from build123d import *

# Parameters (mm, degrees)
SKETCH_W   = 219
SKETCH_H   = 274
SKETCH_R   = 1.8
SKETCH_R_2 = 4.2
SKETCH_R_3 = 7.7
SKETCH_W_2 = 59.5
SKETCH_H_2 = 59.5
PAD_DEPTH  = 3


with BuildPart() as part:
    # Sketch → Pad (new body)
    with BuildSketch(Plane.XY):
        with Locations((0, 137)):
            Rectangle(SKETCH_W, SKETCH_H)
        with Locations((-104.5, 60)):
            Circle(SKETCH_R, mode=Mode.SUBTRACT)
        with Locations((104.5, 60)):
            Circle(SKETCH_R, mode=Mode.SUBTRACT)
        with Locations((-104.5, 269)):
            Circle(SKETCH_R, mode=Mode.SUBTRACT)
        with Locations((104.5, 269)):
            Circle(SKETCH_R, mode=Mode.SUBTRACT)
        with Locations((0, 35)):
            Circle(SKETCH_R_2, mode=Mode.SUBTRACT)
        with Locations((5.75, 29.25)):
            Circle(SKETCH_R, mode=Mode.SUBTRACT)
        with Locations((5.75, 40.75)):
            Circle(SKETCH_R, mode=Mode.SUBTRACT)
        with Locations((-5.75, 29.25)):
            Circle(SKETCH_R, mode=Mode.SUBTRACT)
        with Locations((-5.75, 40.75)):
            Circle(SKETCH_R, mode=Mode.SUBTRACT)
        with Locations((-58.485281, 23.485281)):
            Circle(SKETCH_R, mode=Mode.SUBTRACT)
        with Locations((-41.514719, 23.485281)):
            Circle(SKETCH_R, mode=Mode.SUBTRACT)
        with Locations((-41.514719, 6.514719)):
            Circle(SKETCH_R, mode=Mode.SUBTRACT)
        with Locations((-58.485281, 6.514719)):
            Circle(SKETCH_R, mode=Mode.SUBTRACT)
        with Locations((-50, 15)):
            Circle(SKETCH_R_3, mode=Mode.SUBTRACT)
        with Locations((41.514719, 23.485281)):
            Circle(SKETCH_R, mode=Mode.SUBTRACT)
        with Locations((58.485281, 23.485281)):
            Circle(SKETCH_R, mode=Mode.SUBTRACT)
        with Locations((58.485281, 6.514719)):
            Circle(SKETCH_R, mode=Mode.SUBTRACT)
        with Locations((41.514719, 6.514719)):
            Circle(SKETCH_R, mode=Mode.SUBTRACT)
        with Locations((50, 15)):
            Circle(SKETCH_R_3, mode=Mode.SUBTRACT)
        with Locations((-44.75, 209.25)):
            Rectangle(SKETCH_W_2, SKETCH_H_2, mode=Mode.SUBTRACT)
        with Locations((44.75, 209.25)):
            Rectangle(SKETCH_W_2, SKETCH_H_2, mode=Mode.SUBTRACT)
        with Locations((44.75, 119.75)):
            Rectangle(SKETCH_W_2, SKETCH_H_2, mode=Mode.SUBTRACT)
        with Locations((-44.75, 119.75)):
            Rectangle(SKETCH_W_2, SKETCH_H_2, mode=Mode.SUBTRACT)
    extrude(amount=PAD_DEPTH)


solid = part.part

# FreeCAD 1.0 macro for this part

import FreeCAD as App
import Part
import Sketcher

V = App.Vector
Q = App.Units.Quantity

doc = App.newDocument("Part")
params = doc.addObject("Spreadsheet::Sheet", "Params")
for row, (alias, value) in enumerate([
    ("sketch1_diameter", "3.6 mm"),
    ("sketch1_diameter2", "15.4 mm"),
    ("sketch1_diameter3", "8.4 mm"),
    ("sketch1_width", "219 mm"),
    ("sketch1_height", "274 mm"),
    ("pad1_length", "3 mm"),
], start=1):
    params.set(f"A{row}", alias)
    params.set(f"B{row}", "=" + value)
    params.setAlias(f"B{row}", alias)

body = doc.addObject("PartDesign::Body", "Body")

sketch1 = body.newObject("Sketcher::SketchObject", "Sketch")
sketch1.AttachmentSupport = (doc.getObject("XY_Plane"), [""])
sketch1.MapMode = "FlatFace"
sketch1.addGeometry([
    Part.LineSegment(V(-109.5, 274, 0), V(-109.5, 0, 0)),
    Part.LineSegment(V(-109.5, 0, 0), V(109.5, 0, 0)),
    Part.LineSegment(V(109.5, 0, 0), V(109.5, 274, 0)),
    Part.LineSegment(V(109.5, 274, 0), V(-109.5, 274, 0)),
    Part.Circle(V(-58.485281, 6.514719, 0), V(0, 0, 1), 1.8),
    Part.Circle(V(-58.485281, 23.485281, 0), V(0, 0, 1), 1.8),
    Part.Circle(V(-104.5, 60, 0), V(0, 0, 1), 1.8),
    Part.Circle(V(-41.514719, 6.514719, 0), V(0, 0, 1), 1.8),
    Part.Circle(V(-50, 15, 0), V(0, 0, 1), 7.7),
    Part.Circle(V(-41.514719, 23.485281, 0), V(0, 0, 1), 1.8),
    Part.Circle(V(-5.75, 29.25, 0), V(0, 0, 1), 1.8),
    Part.Circle(V(-5.75, 40.75, 0), V(0, 0, 1), 1.8),
    Part.LineSegment(V(-15, 90, 0), V(-74.5, 90, 0)),
    Part.LineSegment(V(-74.5, 90, 0), V(-74.5, 149.5, 0)),
    Part.LineSegment(V(-74.5, 149.5, 0), V(-15, 149.5, 0)),
    Part.LineSegment(V(-15, 149.5, 0), V(-15, 90, 0)),
    Part.Circle(V(5.75, 29.25, 0), V(0, 0, 1), 1.8),
    Part.Circle(V(0, 35, 0), V(0, 0, 1), 4.2),
    Part.Circle(V(41.514719, 6.514719, 0), V(0, 0, 1), 1.8),
    Part.Circle(V(50, 15, 0), V(0, 0, 1), 7.7),
    Part.Circle(V(41.514719, 23.485281, 0), V(0, 0, 1), 1.8),
    Part.Circle(V(5.75, 40.75, 0), V(0, 0, 1), 1.8),
    Part.Circle(V(58.485281, 6.514719, 0), V(0, 0, 1), 1.8),
    Part.Circle(V(58.485281, 23.485281, 0), V(0, 0, 1), 1.8),
    Part.Circle(V(104.5, 60, 0), V(0, 0, 1), 1.8),
    Part.LineSegment(V(74.5, 90, 0), V(15, 90, 0)),
    Part.LineSegment(V(15, 90, 0), V(15, 149.5, 0)),
    Part.LineSegment(V(15, 149.5, 0), V(74.5, 149.5, 0)),
    Part.LineSegment(V(74.5, 149.5, 0), V(74.5, 90, 0)),
    Part.Circle(V(-104.5, 269, 0), V(0, 0, 1), 1.8),
    Part.LineSegment(V(-15, 179.5, 0), V(-74.5, 179.5, 0)),
    Part.LineSegment(V(-74.5, 179.5, 0), V(-74.5, 239, 0)),
    Part.LineSegment(V(-74.5, 239, 0), V(-15, 239, 0)),
    Part.LineSegment(V(-15, 239, 0), V(-15, 179.5, 0)),
    Part.LineSegment(V(74.5, 179.5, 0), V(15, 179.5, 0)),
    Part.LineSegment(V(15, 179.5, 0), V(15, 239, 0)),
    Part.LineSegment(V(15, 239, 0), V(74.5, 239, 0)),
    Part.LineSegment(V(74.5, 239, 0), V(74.5, 179.5, 0)),
    Part.Circle(V(104.5, 269, 0), V(0, 0, 1), 1.8),
], False)
sketch1.addConstraint([
    Sketcher.Constraint("Coincident", 0, 2, 1, 1),
    Sketcher.Constraint("Coincident", 1, 2, 2, 1),
    Sketcher.Constraint("Coincident", 2, 2, 3, 1),
    Sketcher.Constraint("Coincident", 3, 2, 0, 1),
    Sketcher.Constraint("Coincident", 12, 2, 13, 1),
    Sketcher.Constraint("Coincident", 13, 2, 14, 1),
    Sketcher.Constraint("Coincident", 14, 2, 15, 1),
    Sketcher.Constraint("Coincident", 15, 2, 12, 1),
    Sketcher.Constraint("Coincident", 25, 2, 26, 1),
    Sketcher.Constraint("Coincident", 26, 2, 27, 1),
    Sketcher.Constraint("Coincident", 27, 2, 28, 1),
    Sketcher.Constraint("Coincident", 28, 2, 25, 1),
    Sketcher.Constraint("Coincident", 30, 2, 31, 1),
    Sketcher.Constraint("Coincident", 31, 2, 32, 1),
    Sketcher.Constraint("Coincident", 32, 2, 33, 1),
    Sketcher.Constraint("Coincident", 33, 2, 30, 1),
    Sketcher.Constraint("Coincident", 34, 2, 35, 1),
    Sketcher.Constraint("Coincident", 35, 2, 36, 1),
    Sketcher.Constraint("Coincident", 36, 2, 37, 1),
    Sketcher.Constraint("Coincident", 37, 2, 34, 1),
    Sketcher.Constraint("Vertical", 0),
    Sketcher.Constraint("Horizontal", 1),
    Sketcher.Constraint("Vertical", 2),
    Sketcher.Constraint("Horizontal", 3),
    Sketcher.Constraint("Horizontal", 12),
    Sketcher.Constraint("Vertical", 13),
    Sketcher.Constraint("Horizontal", 14),
    Sketcher.Constraint("Vertical", 15),
    Sketcher.Constraint("Horizontal", 25),
    Sketcher.Constraint("Vertical", 26),
    Sketcher.Constraint("Horizontal", 27),
    Sketcher.Constraint("Vertical", 28),
    Sketcher.Constraint("Horizontal", 30),
    Sketcher.Constraint("Vertical", 31),
    Sketcher.Constraint("Horizontal", 32),
    Sketcher.Constraint("Vertical", 33),
    Sketcher.Constraint("Horizontal", 34),
    Sketcher.Constraint("Vertical", 35),
    Sketcher.Constraint("Horizontal", 36),
    Sketcher.Constraint("Vertical", 37),
    Sketcher.Constraint("Equal", 4, 5),
    Sketcher.Constraint("Equal", 5, 6),
    Sketcher.Constraint("Equal", 6, 7),
    Sketcher.Constraint("Equal", 7, 9),
    Sketcher.Constraint("Equal", 9, 10),
    Sketcher.Constraint("Equal", 10, 11),
    Sketcher.Constraint("Equal", 11, 16),
    Sketcher.Constraint("Equal", 16, 18),
    Sketcher.Constraint("Equal", 8, 19),
    Sketcher.Constraint("Equal", 18, 20),
    Sketcher.Constraint("Equal", 20, 21),
    Sketcher.Constraint("Equal", 21, 22),
    Sketcher.Constraint("Equal", 22, 23),
    Sketcher.Constraint("Equal", 23, 24),
    Sketcher.Constraint("Equal", 24, 29),
    Sketcher.Constraint("Equal", 29, 38),
    Sketcher.Constraint("Symmetric", 0, 2, 1, 2, -1, 1),
    Sketcher.Constraint("Symmetric", 10, 3, 16, 3, -2),
    Sketcher.Constraint("Symmetric", 7, 3, 18, 3, -2),
    Sketcher.Constraint("Symmetric", 8, 3, 19, 3, -2),
    Sketcher.Constraint("Symmetric", 9, 3, 20, 3, -2),
    Sketcher.Constraint("Symmetric", 11, 3, 21, 3, -2),
    Sketcher.Constraint("Symmetric", 4, 3, 22, 3, -2),
    Sketcher.Constraint("Symmetric", 5, 3, 23, 3, -2),
    Sketcher.Constraint("Symmetric", 6, 3, 24, 3, -2),
    Sketcher.Constraint("Symmetric", 29, 3, 38, 3, -2),
    Sketcher.Constraint("Symmetric", 15, 2, 25, 2, -2),
    Sketcher.Constraint("Symmetric", 13, 2, 27, 2, -2),
    Sketcher.Constraint("Symmetric", 33, 2, 34, 2, -2),
    Sketcher.Constraint("Symmetric", 31, 2, 36, 2, -2),
    Sketcher.Constraint("PointOnObject", 17, 3, -2),
    Sketcher.Constraint("Horizontal", 4, 3, 7, 3),
    Sketcher.Constraint("Horizontal", 5, 3, 9, 3),
    Sketcher.Constraint("Vertical", 4, 3, 5, 3),
    Sketcher.Constraint("Vertical", 7, 3, 9, 3),
    Sketcher.Constraint("Vertical", 10, 3, 11, 3),
    Sketcher.Constraint("Vertical", 6, 3, 29, 3),
    Sketcher.Constraint("Vertical", 13, 2, 30, 2),
    Sketcher.Constraint("Vertical", 15, 2, 32, 2),
    Sketcher.Constraint("Equal", 36, 13),
    Sketcher.Constraint("Equal", 28, 31),
    Sketcher.Constraint("Diameter", 4, Q("3.6 mm")),
    Sketcher.Constraint("Diameter", 8, Q("15.4 mm")),
    Sketcher.Constraint("Diameter", 17, Q("8.4 mm")),
    Sketcher.Constraint("DistanceX", 1, 1, 1, 2, Q("219 mm")),
    Sketcher.Constraint("DistanceY", 0, 2, 0, 1, Q("274 mm")),
    Sketcher.Constraint("DistanceX", 12, 2, 12, 1, Q("59.5 mm")),
    Sketcher.Constraint("DistanceY", -1, 1, 6, 3, Q("60 mm")),
    Sketcher.Constraint("DistanceX", 8, 3, -1, 1, Q("50 mm")),
    Sketcher.Constraint("DistanceY", -1, 1, 8, 3, Q("15 mm")),
    Sketcher.Constraint("DistanceY", -1, 1, 17, 3, Q("35 mm")),
    Sketcher.Constraint("DistanceY", -1, 1, 29, 3, Q("269 mm")),
    Sketcher.Constraint("DistanceY", -1, 1, 12, 2, Q("90 mm")),
    Sketcher.Constraint("DistanceX", 14, 2, -1, 1, Q("15 mm")),
    Sketcher.Constraint("DistanceY", -1, 1, 31, 2, Q("239 mm")),
    Sketcher.Constraint("DistanceX", 29, 3, 38, 3, Q("209 mm")),
    Sketcher.Constraint("DistanceY", 10, 3, 11, 3, Q("11.5 mm")),
    Sketcher.Constraint("DistanceX", 10, 3, 16, 3, Q("11.5 mm")),
    Sketcher.Constraint("DistanceY", -1, 1, 10, 3, Q("29.25 mm")),
    Sketcher.Constraint("DistanceX", 4, 3, -1, 1, Q("58.485281 mm")),
    Sketcher.Constraint("DistanceY", -1, 1, 4, 3, Q("6.514719 mm")),
    Sketcher.Constraint("DistanceY", -1, 1, 5, 3, Q("23.485281 mm")),
    Sketcher.Constraint("DistanceX", 7, 3, -1, 1, Q("41.514719 mm")),
])
sketch1.setExpression("Constraints[81]", "Params.sketch1_diameter")
sketch1.setExpression("Constraints[82]", "Params.sketch1_diameter2")
sketch1.setExpression("Constraints[83]", "Params.sketch1_diameter3")
sketch1.setExpression("Constraints[84]", "Params.sketch1_width")
sketch1.setExpression("Constraints[85]", "Params.sketch1_height")
pad1 = body.newObject("PartDesign::Pad", "Pad")
pad1.Profile = sketch1
pad1.setExpression("Length", "Params.pad1_length")

doc.recompute()
